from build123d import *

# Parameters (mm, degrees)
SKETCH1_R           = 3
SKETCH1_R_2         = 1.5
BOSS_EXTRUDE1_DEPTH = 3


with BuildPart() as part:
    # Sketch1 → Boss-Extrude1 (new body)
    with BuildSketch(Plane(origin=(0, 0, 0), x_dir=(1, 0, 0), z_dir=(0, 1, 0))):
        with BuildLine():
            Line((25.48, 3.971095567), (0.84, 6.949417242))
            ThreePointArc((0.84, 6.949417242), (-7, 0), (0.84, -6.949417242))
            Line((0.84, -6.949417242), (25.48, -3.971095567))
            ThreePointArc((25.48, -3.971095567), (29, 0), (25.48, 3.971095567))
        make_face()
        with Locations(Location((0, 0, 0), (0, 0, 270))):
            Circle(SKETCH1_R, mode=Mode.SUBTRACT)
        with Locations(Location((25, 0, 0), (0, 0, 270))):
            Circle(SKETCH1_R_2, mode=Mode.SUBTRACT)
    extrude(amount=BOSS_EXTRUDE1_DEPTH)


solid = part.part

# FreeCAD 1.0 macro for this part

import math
import FreeCAD as App
import Part
import Sketcher

V = App.Vector

doc = App.newDocument("Part")
body = doc.addObject("PartDesign::Body", "Body")

sketch1 = body.newObject("Sketcher::SketchObject", "Sketch")
sketch1.AttachmentSupport = (doc.getObject("XZ_Plane"), [""])
sketch1.MapMode = "FlatFace"
sketch1.addGeometry(Part.LineSegment(V(25.5, -4, 0), V(0.8, -6.9, 0)), False)
sketch1.addGeometry(Part.ArcOfCircle(Part.Circle(V(0, 0, 0), V(0, 0, 1), 7), math.radians(83), math.radians(277)), False)
sketch1.addGeometry(Part.LineSegment(V(0.8, 6.9, 0), V(25.5, 4, 0)), False)
sketch1.addGeometry(Part.ArcOfCircle(Part.Circle(V(25, 0, 0), V(0, 0, 1), 4), math.radians(-83), math.radians(83)), False)
sketch1.addGeometry(Part.Circle(V(0, 0, 0), V(0, 0, 1), 3), False)
sketch1.addGeometry(Part.Circle(V(25, 0, 0), V(0, 0, 1), 1.5), False)
sketch1.addConstraint(Sketcher.Constraint("Tangent", 0, 2, 1, 2))
sketch1.addConstraint(Sketcher.Constraint("Tangent", 1, 1, 2, 1))
sketch1.addConstraint(Sketcher.Constraint("Tangent", 2, 2, 3, 2))
sketch1.addConstraint(Sketcher.Constraint("Tangent", 3, 1, 0, 1))
sketch1.addConstraint(Sketcher.Constraint("Coincident", 1, 3, -1, 1))
sketch1.addConstraint(Sketcher.Constraint("Coincident", 4, 3, -1, 1))
sketch1.addConstraint(Sketcher.Constraint("Coincident", 5, 3, 3, 3))
sketch1.addConstraint(Sketcher.Constraint("PointOnObject", 3, 3, -1))
sketch1.addConstraint(Sketcher.Constraint("Diameter", 4, 6.0))
sketch1.addConstraint(Sketcher.Constraint("Diameter", 5, 3.0))
sketch1.addConstraint(Sketcher.Constraint("Radius", 1, 7.0))
sketch1.addConstraint(Sketcher.Constraint("Radius", 3, 4.0))
sketch1.addConstraint(Sketcher.Constraint("DistanceX", -1, 1, 3, 3, 25.0))
pad1 = body.newObject("PartDesign::Pad", "Pad")
pad1.Profile = sketch1
pad1.Length = 3
pad1.Reversed = True

doc.recompute()
